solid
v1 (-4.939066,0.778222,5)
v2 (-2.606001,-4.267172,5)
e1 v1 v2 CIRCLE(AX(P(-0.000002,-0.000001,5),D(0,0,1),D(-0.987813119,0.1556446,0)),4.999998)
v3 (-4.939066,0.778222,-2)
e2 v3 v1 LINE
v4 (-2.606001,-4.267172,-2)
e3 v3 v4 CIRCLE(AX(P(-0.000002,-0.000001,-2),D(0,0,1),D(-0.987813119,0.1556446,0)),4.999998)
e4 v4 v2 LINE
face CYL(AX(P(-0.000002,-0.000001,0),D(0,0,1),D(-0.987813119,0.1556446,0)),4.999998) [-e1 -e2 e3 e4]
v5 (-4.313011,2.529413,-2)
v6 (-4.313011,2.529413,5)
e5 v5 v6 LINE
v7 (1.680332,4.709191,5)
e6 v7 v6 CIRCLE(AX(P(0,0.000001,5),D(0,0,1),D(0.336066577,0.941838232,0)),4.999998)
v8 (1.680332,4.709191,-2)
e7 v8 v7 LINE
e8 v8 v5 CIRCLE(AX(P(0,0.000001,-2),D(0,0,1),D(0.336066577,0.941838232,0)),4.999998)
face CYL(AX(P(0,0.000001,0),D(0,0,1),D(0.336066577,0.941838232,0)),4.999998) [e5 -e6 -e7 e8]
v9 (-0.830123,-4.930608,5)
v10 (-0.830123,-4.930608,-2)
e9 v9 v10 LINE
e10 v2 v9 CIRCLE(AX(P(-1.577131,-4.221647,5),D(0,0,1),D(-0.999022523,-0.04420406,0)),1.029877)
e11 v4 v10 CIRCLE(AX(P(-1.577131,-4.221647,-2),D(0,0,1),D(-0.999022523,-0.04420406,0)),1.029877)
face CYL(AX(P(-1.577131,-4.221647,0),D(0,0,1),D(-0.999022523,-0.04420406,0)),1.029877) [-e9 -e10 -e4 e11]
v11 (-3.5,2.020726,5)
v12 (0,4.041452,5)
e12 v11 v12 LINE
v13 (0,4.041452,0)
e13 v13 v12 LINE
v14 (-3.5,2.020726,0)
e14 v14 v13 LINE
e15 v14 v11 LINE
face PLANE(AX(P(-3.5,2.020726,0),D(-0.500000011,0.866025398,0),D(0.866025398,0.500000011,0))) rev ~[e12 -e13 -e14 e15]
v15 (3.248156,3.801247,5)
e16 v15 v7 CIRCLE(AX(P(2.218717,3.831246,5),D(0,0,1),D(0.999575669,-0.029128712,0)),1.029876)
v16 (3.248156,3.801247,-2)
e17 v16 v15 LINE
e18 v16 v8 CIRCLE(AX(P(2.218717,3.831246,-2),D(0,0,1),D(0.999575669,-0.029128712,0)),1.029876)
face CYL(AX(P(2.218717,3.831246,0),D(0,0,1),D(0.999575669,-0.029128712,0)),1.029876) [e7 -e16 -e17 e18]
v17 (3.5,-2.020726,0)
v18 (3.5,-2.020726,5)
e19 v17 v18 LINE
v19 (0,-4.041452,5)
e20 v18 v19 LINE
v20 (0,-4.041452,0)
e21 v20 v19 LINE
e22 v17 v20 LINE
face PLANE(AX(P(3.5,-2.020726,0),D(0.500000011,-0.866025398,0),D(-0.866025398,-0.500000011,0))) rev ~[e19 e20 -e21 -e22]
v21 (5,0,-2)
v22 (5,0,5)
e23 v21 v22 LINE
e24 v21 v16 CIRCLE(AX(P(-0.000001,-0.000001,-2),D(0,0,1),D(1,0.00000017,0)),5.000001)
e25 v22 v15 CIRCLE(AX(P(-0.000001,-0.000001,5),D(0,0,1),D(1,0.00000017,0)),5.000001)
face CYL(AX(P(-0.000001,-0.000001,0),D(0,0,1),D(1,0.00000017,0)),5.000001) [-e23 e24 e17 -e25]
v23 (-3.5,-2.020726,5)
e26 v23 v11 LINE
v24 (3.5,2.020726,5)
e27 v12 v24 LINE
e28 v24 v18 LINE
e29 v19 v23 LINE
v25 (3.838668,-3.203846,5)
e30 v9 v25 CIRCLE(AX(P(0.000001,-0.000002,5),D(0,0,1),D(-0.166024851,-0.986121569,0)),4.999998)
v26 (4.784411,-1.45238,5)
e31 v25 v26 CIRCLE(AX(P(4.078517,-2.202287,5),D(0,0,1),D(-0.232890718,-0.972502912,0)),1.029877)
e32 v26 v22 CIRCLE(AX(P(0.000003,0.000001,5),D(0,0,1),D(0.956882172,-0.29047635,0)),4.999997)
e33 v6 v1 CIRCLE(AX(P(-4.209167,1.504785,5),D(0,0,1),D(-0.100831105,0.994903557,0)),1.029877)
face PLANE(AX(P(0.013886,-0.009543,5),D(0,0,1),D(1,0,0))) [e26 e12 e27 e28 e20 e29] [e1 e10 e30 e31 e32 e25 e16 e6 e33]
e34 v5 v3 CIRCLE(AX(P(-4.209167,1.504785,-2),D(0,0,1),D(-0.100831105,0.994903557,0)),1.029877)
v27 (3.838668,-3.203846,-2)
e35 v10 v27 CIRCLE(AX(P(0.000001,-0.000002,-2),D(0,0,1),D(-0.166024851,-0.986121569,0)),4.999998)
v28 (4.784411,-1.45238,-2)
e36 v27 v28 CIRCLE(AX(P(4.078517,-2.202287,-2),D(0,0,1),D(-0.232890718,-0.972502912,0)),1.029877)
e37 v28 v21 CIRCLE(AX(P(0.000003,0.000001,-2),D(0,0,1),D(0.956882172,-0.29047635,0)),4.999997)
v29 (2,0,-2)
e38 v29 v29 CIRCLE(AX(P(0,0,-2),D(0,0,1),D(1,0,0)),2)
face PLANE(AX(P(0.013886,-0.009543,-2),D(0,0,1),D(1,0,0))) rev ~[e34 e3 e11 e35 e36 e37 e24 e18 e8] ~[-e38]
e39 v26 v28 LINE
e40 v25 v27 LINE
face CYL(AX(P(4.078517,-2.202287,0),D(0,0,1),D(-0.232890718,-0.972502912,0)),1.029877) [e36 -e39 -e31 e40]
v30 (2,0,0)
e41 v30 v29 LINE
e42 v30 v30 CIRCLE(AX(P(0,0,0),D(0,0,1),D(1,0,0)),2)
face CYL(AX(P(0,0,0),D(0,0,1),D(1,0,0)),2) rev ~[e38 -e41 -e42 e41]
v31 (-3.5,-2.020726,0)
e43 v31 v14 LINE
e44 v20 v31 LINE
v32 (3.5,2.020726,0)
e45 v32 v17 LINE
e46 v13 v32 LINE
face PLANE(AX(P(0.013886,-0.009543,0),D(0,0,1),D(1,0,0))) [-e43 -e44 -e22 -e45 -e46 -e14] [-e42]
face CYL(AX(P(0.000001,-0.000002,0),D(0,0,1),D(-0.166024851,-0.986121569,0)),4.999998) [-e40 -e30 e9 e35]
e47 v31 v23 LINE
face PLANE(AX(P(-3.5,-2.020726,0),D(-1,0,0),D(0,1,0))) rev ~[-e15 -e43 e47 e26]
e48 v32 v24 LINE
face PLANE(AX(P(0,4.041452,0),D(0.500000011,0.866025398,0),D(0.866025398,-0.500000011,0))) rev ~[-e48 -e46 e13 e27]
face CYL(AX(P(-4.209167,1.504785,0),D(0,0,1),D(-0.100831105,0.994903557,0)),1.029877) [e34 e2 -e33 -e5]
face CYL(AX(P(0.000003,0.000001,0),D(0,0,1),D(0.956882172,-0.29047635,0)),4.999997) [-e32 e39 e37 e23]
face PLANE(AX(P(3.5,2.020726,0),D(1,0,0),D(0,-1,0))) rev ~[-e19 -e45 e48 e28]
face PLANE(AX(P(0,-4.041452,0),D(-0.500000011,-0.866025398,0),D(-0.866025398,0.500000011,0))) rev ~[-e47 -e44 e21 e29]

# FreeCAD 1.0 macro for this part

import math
import FreeCAD as App
import Part
import Sketcher
Q = App.Units.Quantity

doc = App.newDocument("Part")
body = doc.addObject("PartDesign::Body", "Body")

sketch1 = body.newObject("Sketcher::SketchObject", "Sketch")
sketch1.AttachmentSupport = (doc.getObject("XY_Plane"), [""])
sketch1.MapMode = "FlatFace"
sketch1.addGeometry(Part.ArcOfCircle(Part.Circle(App.Vector(0, 0, 0), App.Vector(0, 0, 1), 5), math.radians(-16.89), math.radians(0)), False)
sketch1.addGeometry(Part.ArcOfCircle(Part.Circle(App.Vector(0, 0, 0), App.Vector(0, 0, 1), 5), math.radians(0), math.radians(49)), False)
sketch1.addGeometry(Part.ArcOfCircle(Part.Circle(App.Vector(2.2, 3.8, 0), App.Vector(0, 0, 1), 1), math.radians(-2), math.radians(122)), False)
sketch1.addGeometry(Part.ArcOfCircle(Part.Circle(App.Vector(0, 0, 0), App.Vector(0, 0, 1), 5), math.radians(70), math.radians(150)), False)
sketch1.addGeometry(Part.ArcOfCircle(Part.Circle(App.Vector(-4.2, 1.5, 0), App.Vector(0, 0, 1), 1), math.radians(96), math.radians(225)), False)
sketch1.addGeometry(Part.ArcOfCircle(Part.Circle(App.Vector(0, 0, 0), App.Vector(0, 0, 1), 5), math.radians(171), math.radians(239)), False)
sketch1.addGeometry(Part.ArcOfCircle(Part.Circle(App.Vector(-1.6, -4.2, 0), App.Vector(0, 0, 1), 1), math.radians(-177), math.radians(-44)), False)
sketch1.addGeometry(Part.ArcOfCircle(Part.Circle(App.Vector(0, 0, 0), App.Vector(0, 0, 1), 5), math.radians(-100), math.radians(-40)), False)
sketch1.addGeometry(Part.ArcOfCircle(Part.Circle(App.Vector(4.1, -2.2, 0), App.Vector(0, 0, 1), 1), math.radians(-103), math.radians(47)), False)
sketch1.addGeometry(Part.LineSegment(App.Vector(0, -4, 0), App.Vector(-3.5, -2, 0)), False)
sketch1.addGeometry(Part.LineSegment(App.Vector(-3.5, -2, 0), App.Vector(-3.5, 2, 0)), False)
sketch1.addGeometry(Part.LineSegment(App.Vector(-3.5, 2, 0), App.Vector(0, 4, 0)), False)
sketch1.addGeometry(Part.LineSegment(App.Vector(0, 4, 0), App.Vector(3.5, 2, 0)), False)
sketch1.addGeometry(Part.LineSegment(App.Vector(3.5, 2, 0), App.Vector(3.5, -2, 0)), False)
sketch1.addGeometry(Part.LineSegment(App.Vector(3.5, -2, 0), App.Vector(0, -4, 0)), False)
sketch1.addConstraint(Sketcher.Constraint("Tangent", 0, 2, 1, 1))
sketch1.addConstraint(Sketcher.Constraint("Coincident", 1, 2, 2, 1))
sketch1.addConstraint(Sketcher.Constraint("Coincident", 2, 2, 3, 1))
sketch1.addConstraint(Sketcher.Constraint("Coincident", 3, 2, 4, 1))
sketch1.addConstraint(Sketcher.Constraint("Coincident", 4, 2, 5, 1))
sketch1.addConstraint(Sketcher.Constraint("Coincident", 5, 2, 6, 1))
sketch1.addConstraint(Sketcher.Constraint("Coincident", 6, 2, 7, 1))
sketch1.addConstraint(Sketcher.Constraint("Coincident", 7, 2, 8, 1))
sketch1.addConstraint(Sketcher.Constraint("Coincident", 8, 2, 0, 1))
sketch1.addConstraint(Sketcher.Constraint("Coincident", 9, 2, 10, 1))
sketch1.addConstraint(Sketcher.Constraint("Coincident", 10, 2, 11, 1))
sketch1.addConstraint(Sketcher.Constraint("Coincident", 11, 2, 12, 1))
sketch1.addConstraint(Sketcher.Constraint("Coincident", 12, 2, 13, 1))
sketch1.addConstraint(Sketcher.Constraint("Coincident", 13, 2, 14, 1))
sketch1.addConstraint(Sketcher.Constraint("Coincident", 14, 2, 9, 1))
sketch1.addConstraint(Sketcher.Constraint("Vertical", 10))
sketch1.addConstraint(Sketcher.Constraint("Vertical", 13))
sketch1.addConstraint(Sketcher.Constraint("Coincident", 0, 3, -1, 1))
sketch1.addConstraint(Sketcher.Constraint("Coincident", 3, 3, -1, 1))
sketch1.addConstraint(Sketcher.Constraint("Coincident", 5, 3, -1, 1))
sketch1.addConstraint(Sketcher.Constraint("Coincident", 7, 3, -1, 1))
sketch1.addConstraint(Sketcher.Constraint("Equal", 0, 3))
sketch1.addConstraint(Sketcher.Constraint("Equal", 2, 4))
sketch1.addConstraint(Sketcher.Constraint("Equal", 3, 5))
sketch1.addConstraint(Sketcher.Constraint("Equal", 4, 6))
sketch1.addConstraint(Sketcher.Constraint("Equal", 5, 7))
sketch1.addConstraint(Sketcher.Constraint("Equal", 6, 8))
sketch1.addConstraint(Sketcher.Constraint("Symmetric", 9, 2, 12, 2, -1, 1))
sketch1.addConstraint(Sketcher.Constraint("Symmetric", 11, 2, 14, 2, -1, 1))
sketch1.addConstraint(Sketcher.Constraint("PointOnObject", 0, 2, -1))
sketch1.addConstraint(Sketcher.Constraint("PointOnObject", 11, 2, -2))
sketch1.addConstraint(Sketcher.Constraint("Parallel", 11, 14))
sketch1.addConstraint(Sketcher.Constraint("Horizontal", 10, 2, 12, 2))
sketch1.addConstraint(Sketcher.Constraint("Radius", 1, 5.000001))
sketch1.addConstraint(Sketcher.Constraint("Radius", 3, 4.999998))
sketch1.addConstraint(Sketcher.Constraint("Angle", 9, Q("149.999999 deg")))
sketch1.addConstraint(Sketcher.Constraint("DistanceX", 9, 2, -1, 1, 3.5))
sketch1.addConstraint(Sketcher.Constraint("DistanceY", 1, 2, 2, 3, 0.029999))
sketch1.addConstraint(Sketcher.Constraint("DistanceX", 5, 2, -1, 1, 2.606001))
sketch1.addConstraint(Sketcher.Constraint("Radius", 2, 1.029876))
sketch1.addConstraint(Sketcher.Constraint("DistanceY", 10, 1, 10, 2, 4.041452))
sketch1.addConstraint(Sketcher.Constraint("DistanceX", 4, 2, 4, 3, 0.729899))
sketch1.addConstraint(Sketcher.Constraint("DistanceX", 6, 3, -1, 1, 1.577131))
sketch1.addConstraint(Sketcher.Constraint("DistanceY", -1, 1, 2, 2, 4.709191))
sketch1.addConstraint(Sketcher.Constraint("DistanceX", 3, 2, -1, 1, 4.313011))
sketch1.addConstraint(Sketcher.Constraint("DistanceX", -1, 1, 7, 2, 3.838668))
sketch1.addConstraint(Sketcher.Constraint("DistanceX", -1, 1, 8, 2, 4.784411))
pad1 = body.newObject("PartDesign::Pad", "Pad")
pad1.Profile = sketch1
pad1.Length = 5

sketch2 = body.newObject("Sketcher::SketchObject", "Sketch001")
sketch2.AttachmentSupport = (doc.getObject("XY_Plane"), [""])
sketch2.MapMode = "FlatFace"
sketch2.addGeometry(Part.ArcOfCircle(Part.Circle(App.Vector(0, 0, 0), App.Vector(0, 0, 1), 5), math.radians(-16.89), math.radians(0)), False)
sketch2.addGeometry(Part.ArcOfCircle(Part.Circle(App.Vector(0, 0, 0), App.Vector(0, 0, 1), 5), math.radians(0), math.radians(49)), False)
sketch2.addGeometry(Part.ArcOfCircle(Part.Circle(App.Vector(2.2, 3.8, 0), App.Vector(0, 0, 1), 1), math.radians(-2), math.radians(122)), False)
sketch2.addGeometry(Part.ArcOfCircle(Part.Circle(App.Vector(0, 0, 0), App.Vector(0, 0, 1), 5), math.radians(70), math.radians(150)), False)
sketch2.addGeometry(Part.ArcOfCircle(Part.Circle(App.Vector(-4.2, 1.5, 0), App.Vector(0, 0, 1), 1), math.radians(96), math.radians(225)), False)
sketch2.addGeometry(Part.ArcOfCircle(Part.Circle(App.Vector(0, 0, 0), App.Vector(0, 0, 1), 5), math.radians(171), math.radians(239)), False)
sketch2.addGeometry(Part.ArcOfCircle(Part.Circle(App.Vector(-1.6, -4.2, 0), App.Vector(0, 0, 1), 1), math.radians(-177), math.radians(-44)), False)
sketch2.addGeometry(Part.ArcOfCircle(Part.Circle(App.Vector(0, 0, 0), App.Vector(0, 0, 1), 5), math.radians(-100), math.radians(-40)), False)
sketch2.addGeometry(Part.ArcOfCircle(Part.Circle(App.Vector(4.1, -2.2, 0), App.Vector(0, 0, 1), 1), math.radians(-103), math.radians(47)), False)
sketch2.addGeometry(Part.Circle(App.Vector(0, 0, 0), App.Vector(0, 0, 1), 2), False)
sketch2.addConstraint(Sketcher.Constraint("Tangent", 0, 2, 1, 1))
sketch2.addConstraint(Sketcher.Constraint("Coincident", 1, 2, 2, 1))
sketch2.addConstraint(Sketcher.Constraint("Coincident", 2, 2, 3, 1))
sketch2.addConstraint(Sketcher.Constraint("Coincident", 3, 2, 4, 1))
sketch2.addConstraint(Sketcher.Constraint("Coincident", 4, 2, 5, 1))
sketch2.addConstraint(Sketcher.Constraint("Coincident", 5, 2, 6, 1))
sketch2.addConstraint(Sketcher.Constraint("Coincident", 6, 2, 7, 1))
sketch2.addConstraint(Sketcher.Constraint("Coincident", 7, 2, 8, 1))
sketch2.addConstraint(Sketcher.Constraint("Coincident", 8, 2, 0, 1))
sketch2.addConstraint(Sketcher.Constraint("Coincident", 0, 3, -1, 1))
sketch2.addConstraint(Sketcher.Constraint("Coincident", 3, 3, -1, 1))
sketch2.addConstraint(Sketcher.Constraint("Coincident", 5, 3, -1, 1))
sketch2.addConstraint(Sketcher.Constraint("Coincident", 7, 3, -1, 1))
sketch2.addConstraint(Sketcher.Constraint("Coincident", 9, 3, -1, 1))
sketch2.addConstraint(Sketcher.Constraint("Equal", 0, 3))
sketch2.addConstraint(Sketcher.Constraint("Equal", 2, 4))
sketch2.addConstraint(Sketcher.Constraint("Equal", 3, 5))
sketch2.addConstraint(Sketcher.Constraint("Equal", 4, 6))
sketch2.addConstraint(Sketcher.Constraint("Equal", 5, 7))
sketch2.addConstraint(Sketcher.Constraint("Equal", 6, 8))
sketch2.addConstraint(Sketcher.Constraint("PointOnObject", 0, 2, -1))
sketch2.addConstraint(Sketcher.Constraint("Diameter", 9, 4.0))
sketch2.addConstraint(Sketcher.Constraint("Radius", 1, 5.000001))
sketch2.addConstraint(Sketcher.Constraint("Radius", 3, 4.999998))
sketch2.addConstraint(Sketcher.Constraint("DistanceY", 1, 2, 2, 3, 0.029999))
sketch2.addConstraint(Sketcher.Constraint("DistanceX", 5, 2, -1, 1, 2.606001))
sketch2.addConstraint(Sketcher.Constraint("Radius", 2, 1.029876))
sketch2.addConstraint(Sketcher.Constraint("DistanceX", 4, 2, 4, 3, 0.729899))
sketch2.addConstraint(Sketcher.Constraint("DistanceX", 6, 3, -1, 1, 1.577131))
sketch2.addConstraint(Sketcher.Constraint("DistanceY", -1, 1, 2, 2, 4.709191))
sketch2.addConstraint(Sketcher.Constraint("DistanceX", 3, 2, -1, 1, 4.313011))
sketch2.addConstraint(Sketcher.Constraint("DistanceX", -1, 1, 7, 2, 3.838668))
sketch2.addConstraint(Sketcher.Constraint("DistanceX", -1, 1, 8, 2, 4.784411))
pad2 = body.newObject("PartDesign::Pad", "Pad001")
pad2.Profile = sketch2
pad2.Length = 2
pad2.Reversed = True

doc.recompute()
